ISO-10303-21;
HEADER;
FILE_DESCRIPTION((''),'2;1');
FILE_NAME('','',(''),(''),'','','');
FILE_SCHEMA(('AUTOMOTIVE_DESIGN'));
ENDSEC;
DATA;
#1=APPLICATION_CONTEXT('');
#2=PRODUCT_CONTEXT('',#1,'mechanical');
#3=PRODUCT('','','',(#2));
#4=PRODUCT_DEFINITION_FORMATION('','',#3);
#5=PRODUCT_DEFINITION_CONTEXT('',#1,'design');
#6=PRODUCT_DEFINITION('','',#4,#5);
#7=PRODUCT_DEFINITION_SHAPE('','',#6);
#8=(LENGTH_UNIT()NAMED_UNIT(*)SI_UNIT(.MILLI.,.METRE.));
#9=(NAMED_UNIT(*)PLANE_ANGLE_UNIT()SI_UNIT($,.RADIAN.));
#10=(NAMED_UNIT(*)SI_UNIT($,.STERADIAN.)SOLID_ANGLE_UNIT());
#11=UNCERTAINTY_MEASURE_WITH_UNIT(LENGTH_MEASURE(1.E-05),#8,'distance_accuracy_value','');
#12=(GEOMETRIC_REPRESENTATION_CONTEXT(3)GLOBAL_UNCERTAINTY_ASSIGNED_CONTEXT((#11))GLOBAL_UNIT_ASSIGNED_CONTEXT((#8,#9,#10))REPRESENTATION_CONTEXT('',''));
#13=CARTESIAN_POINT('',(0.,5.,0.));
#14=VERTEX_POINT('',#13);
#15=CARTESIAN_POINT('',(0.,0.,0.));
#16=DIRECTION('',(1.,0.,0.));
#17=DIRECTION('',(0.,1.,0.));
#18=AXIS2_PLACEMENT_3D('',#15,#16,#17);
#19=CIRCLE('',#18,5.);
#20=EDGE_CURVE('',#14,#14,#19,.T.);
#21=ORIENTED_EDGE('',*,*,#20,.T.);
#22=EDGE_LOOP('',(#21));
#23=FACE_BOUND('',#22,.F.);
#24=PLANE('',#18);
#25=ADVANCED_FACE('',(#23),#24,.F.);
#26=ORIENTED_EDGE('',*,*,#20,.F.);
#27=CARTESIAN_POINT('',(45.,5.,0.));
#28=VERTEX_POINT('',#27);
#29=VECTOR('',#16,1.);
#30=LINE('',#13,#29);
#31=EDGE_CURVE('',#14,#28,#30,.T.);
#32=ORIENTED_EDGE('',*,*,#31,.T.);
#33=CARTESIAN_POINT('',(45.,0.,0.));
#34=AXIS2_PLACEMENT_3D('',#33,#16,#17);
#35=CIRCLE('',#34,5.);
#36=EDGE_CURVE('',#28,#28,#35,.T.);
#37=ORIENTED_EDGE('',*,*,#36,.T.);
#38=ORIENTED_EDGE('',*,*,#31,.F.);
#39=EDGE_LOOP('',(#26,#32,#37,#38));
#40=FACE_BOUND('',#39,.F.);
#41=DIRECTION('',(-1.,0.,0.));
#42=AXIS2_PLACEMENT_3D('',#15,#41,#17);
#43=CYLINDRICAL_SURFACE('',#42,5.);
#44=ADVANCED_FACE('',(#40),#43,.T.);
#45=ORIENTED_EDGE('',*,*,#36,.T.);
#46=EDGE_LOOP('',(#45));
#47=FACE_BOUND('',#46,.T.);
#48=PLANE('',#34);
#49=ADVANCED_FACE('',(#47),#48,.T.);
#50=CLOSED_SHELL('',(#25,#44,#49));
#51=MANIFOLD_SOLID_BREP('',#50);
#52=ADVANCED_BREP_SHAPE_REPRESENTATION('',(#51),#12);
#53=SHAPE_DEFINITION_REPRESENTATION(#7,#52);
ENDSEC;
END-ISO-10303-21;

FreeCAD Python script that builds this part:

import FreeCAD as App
import Part
import Sketcher
from FreeCAD import Vector
Q = App.Units.Quantity

doc = App.newDocument("Part")
params = doc.addObject("Spreadsheet::Sheet", "Params")
for row, (alias, value) in enumerate([
    ("sketch1_diameter", "10 mm"),
    ("pad1_length", "45 mm"),
], start=1):
    params.set(f"A{row}", alias)
    params.set(f"B{row}", "=" + value)
    params.setAlias(f"B{row}", alias)

body = doc.addObject("PartDesign::Body", "Body")

sketch1 = body.newObject("Sketcher::SketchObject", "Sketch")
sketch1.AttachmentSupport = (doc.getObject("YZ_Plane"), [""])
sketch1.MapMode = "FlatFace"
sketch1.addGeometry(Part.Circle(Vector(0, 0, 0), Vector(0, 0, 1), 5), False)
sketch1.addConstraint(Sketcher.Constraint("Coincident", 0, 3, -1, 1))
sketch1.addConstraint(Sketcher.Constraint("Diameter", 0, Q("10 mm")))
sketch1.setExpression("Constraints[1]", "Params.sketch1_diameter")
pad1 = body.newObject("PartDesign::Pad", "Pad")
pad1.Profile = sketch1
pad1.setExpression("Length", "Params.pad1_length")

doc.recompute()
